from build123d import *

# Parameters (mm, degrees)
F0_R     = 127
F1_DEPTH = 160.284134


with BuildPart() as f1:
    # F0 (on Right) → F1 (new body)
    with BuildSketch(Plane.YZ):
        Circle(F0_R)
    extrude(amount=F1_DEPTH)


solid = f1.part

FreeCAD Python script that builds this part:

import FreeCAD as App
import Part
import Sketcher
from FreeCAD import Vector
Q = App.Units.Quantity

doc = App.newDocument("Part")
body = doc.addObject("PartDesign::Body", "Body")

sketch1 = body.newObject("Sketcher::SketchObject", "Sketch")
sketch1.AttachmentSupport = (doc.getObject("YZ_Plane"), [""])
sketch1.MapMode = "FlatFace"
sketch1.addGeometry(Part.Circle(Vector(0, 0, 0), Vector(0, 0, 1), 127), False)
sketch1.addConstraint(Sketcher.Constraint("Coincident", 0, 3, -1, 1))
sketch1.addConstraint(Sketcher.Constraint("Diameter", 0, Q("10 in")))
pad1 = body.newObject("PartDesign::Pad", "Pad")
pad1.Profile = sketch1
pad1.Length = 160.284134

doc.recompute()
